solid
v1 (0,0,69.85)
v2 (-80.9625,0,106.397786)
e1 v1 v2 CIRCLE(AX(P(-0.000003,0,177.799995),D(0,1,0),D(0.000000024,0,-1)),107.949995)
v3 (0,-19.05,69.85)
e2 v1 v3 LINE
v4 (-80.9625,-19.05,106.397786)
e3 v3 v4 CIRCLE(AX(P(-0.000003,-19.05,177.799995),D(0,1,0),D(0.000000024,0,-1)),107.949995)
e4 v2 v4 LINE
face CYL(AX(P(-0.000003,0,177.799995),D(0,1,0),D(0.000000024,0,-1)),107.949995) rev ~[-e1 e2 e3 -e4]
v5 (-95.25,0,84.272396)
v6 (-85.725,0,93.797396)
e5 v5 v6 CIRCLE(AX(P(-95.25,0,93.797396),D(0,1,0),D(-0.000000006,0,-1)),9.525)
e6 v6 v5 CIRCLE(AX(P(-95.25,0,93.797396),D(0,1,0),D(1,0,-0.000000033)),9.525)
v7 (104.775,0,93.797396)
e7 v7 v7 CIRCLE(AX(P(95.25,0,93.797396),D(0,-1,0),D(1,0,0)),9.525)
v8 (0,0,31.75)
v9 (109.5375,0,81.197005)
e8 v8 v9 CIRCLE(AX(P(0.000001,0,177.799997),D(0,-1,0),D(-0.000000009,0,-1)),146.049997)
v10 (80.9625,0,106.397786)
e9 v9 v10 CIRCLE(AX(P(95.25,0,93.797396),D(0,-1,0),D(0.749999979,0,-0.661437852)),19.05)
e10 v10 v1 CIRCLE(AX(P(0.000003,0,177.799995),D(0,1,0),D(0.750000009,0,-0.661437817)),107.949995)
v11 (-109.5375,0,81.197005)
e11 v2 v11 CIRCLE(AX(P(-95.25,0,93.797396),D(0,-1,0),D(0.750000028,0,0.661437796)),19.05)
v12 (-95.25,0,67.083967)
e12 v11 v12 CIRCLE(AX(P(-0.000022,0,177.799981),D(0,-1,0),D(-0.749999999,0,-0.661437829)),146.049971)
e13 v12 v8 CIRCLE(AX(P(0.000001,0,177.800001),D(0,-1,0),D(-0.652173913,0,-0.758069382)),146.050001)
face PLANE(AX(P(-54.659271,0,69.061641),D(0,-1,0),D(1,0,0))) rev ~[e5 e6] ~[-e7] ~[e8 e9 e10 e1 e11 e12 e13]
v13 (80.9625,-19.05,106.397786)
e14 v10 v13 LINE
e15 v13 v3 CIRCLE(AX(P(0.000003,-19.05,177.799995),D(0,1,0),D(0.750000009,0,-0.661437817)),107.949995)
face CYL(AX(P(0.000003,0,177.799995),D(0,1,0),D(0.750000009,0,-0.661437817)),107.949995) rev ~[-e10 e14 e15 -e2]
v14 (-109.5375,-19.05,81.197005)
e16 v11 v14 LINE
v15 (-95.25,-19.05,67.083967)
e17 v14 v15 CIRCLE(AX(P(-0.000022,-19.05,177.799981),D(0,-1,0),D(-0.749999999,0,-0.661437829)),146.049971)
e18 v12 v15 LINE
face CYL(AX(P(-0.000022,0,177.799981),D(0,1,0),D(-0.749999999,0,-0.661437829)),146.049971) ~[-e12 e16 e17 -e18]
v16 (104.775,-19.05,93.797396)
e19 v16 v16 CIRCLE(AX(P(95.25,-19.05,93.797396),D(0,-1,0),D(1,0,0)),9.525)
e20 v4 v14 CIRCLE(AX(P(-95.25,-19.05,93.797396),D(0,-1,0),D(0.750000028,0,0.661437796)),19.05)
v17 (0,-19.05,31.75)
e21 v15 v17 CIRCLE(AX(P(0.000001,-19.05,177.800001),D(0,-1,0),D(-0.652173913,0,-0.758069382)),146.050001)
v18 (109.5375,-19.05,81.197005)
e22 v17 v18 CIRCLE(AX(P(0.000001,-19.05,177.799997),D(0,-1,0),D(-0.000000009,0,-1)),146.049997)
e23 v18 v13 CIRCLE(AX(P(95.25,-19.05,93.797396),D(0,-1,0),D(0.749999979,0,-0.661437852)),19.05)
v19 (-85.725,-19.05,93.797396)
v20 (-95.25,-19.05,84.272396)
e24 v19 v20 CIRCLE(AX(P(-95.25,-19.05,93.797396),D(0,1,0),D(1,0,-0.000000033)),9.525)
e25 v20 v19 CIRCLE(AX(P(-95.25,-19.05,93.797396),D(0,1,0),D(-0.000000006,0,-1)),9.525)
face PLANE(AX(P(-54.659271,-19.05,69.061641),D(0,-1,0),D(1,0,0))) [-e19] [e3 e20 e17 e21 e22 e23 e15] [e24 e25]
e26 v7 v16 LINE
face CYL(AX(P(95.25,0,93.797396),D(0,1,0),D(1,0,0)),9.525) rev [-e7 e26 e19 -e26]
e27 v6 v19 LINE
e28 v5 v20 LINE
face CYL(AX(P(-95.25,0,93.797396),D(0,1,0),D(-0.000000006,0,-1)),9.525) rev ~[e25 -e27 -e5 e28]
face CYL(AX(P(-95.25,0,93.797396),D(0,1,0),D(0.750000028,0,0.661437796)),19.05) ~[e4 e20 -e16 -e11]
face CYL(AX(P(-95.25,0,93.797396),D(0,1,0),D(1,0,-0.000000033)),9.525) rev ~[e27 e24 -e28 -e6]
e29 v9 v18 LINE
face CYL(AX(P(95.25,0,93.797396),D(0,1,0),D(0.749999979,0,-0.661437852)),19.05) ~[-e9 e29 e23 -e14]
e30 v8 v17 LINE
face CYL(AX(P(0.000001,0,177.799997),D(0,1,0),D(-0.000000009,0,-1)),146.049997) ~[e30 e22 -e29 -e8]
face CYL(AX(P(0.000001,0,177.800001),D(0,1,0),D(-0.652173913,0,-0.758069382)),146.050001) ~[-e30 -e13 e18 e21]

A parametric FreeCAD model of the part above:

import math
import FreeCAD as App
import Part
import Sketcher
Q = App.Units.Quantity

doc = App.newDocument("Part")
body = doc.addObject("PartDesign::Body", "Body")

# Sketch on XZ plane
sketch1 = body.newObject("Sketcher::SketchObject", "Sketch")
sketch1.AttachmentSupport = (doc.getObject("XZ_Plane"), [""])
sketch1.MapMode = "FlatFace"
sketch1.addGeometry(Part.ArcOfCircle(Part.Circle(App.Vector(0.000001, 177.800001, 0), App.Vector(0, 0, 1), 146.050001), math.radians(-130.705707), math.radians(-90)), False)
sketch1.addGeometry(Part.ArcOfCircle(Part.Circle(App.Vector(0.000001, 177.799997, 0), App.Vector(0, 0, 1), 146.049997), math.radians(-90.000001), math.radians(-41.409622)), False)
sketch1.addGeometry(Part.ArcOfCircle(Part.Circle(App.Vector(95.25, 93.797396, 0), App.Vector(0, 0, 1), 19.05), math.radians(-41.409624), math.radians(138.59038)), False)
sketch1.addGeometry(Part.ArcOfCircle(Part.Circle(App.Vector(0.000003, 177.799995, 0), App.Vector(0, 0, 1), 107.949995), math.radians(-90.000001), math.radians(-41.409621)), False)
sketch1.addGeometry(Part.ArcOfCircle(Part.Circle(App.Vector(-0.000003, 177.799995, 0), App.Vector(0, 0, 1), 107.949995), math.radians(-138.590379), math.radians(-89.999999)), False)
sketch1.addGeometry(Part.ArcOfCircle(Part.Circle(App.Vector(-95.25, 93.797396, 0), App.Vector(0, 0, 1), 19.05), math.radians(41.40962), math.radians(221.409624)), False)
sketch1.addGeometry(Part.ArcOfCircle(Part.Circle(App.Vector(-0.000022, 177.799981, 0), App.Vector(0, 0, 1), 146.049971), math.radians(-138.590378), math.radians(-130.705705)), False)
sketch1.addGeometry(Part.ArcOfCircle(Part.Circle(App.Vector(-95.25, 93.797396, 0), App.Vector(0, 0, 1), 9.525), math.radians(0), math.radians(270)), False)
sketch1.addGeometry(Part.ArcOfCircle(Part.Circle(App.Vector(-95.25, 93.797396, 0), App.Vector(0, 0, 1), 9.525), math.radians(-89.999998), math.radians(-0.000002)), False)
sketch1.addGeometry(Part.Circle(App.Vector(95.25, 93.797396, 0), App.Vector(0, 0, 1), 9.525), False)
sketch1.addConstraint(Sketcher.Constraint("Coincident", 0, 2, 1, 1))
sketch1.addConstraint(Sketcher.Constraint("Coincident", 1, 2, 2, 1))
sketch1.addConstraint(Sketcher.Constraint("Coincident", 2, 2, 3, 2))
sketch1.addConstraint(Sketcher.Constraint("Coincident", 3, 1, 4, 2))
sketch1.addConstraint(Sketcher.Constraint("Coincident", 4, 1, 5, 1))
sketch1.addConstraint(Sketcher.Constraint("Coincident", 5, 2, 6, 1))
sketch1.addConstraint(Sketcher.Constraint("Coincident", 6, 2, 0, 1))
sketch1.addConstraint(Sketcher.Constraint("Coincident", 7, 1, 8, 2))
sketch1.addConstraint(Sketcher.Constraint("Coincident", 8, 1, 7, 2))
sketch1.addConstraint(Sketcher.Constraint("Coincident", 1, 3, 0, 3))
sketch1.addConstraint(Sketcher.Constraint("Coincident", 3, 3, 0, 3))
sketch1.addConstraint(Sketcher.Constraint("Coincident", 4, 3, 0, 3))
sketch1.addConstraint(Sketcher.Constraint("Coincident", 7, 3, 5, 3))
sketch1.addConstraint(Sketcher.Constraint("Coincident", 9, 3, 2, 3))
sketch1.addConstraint(Sketcher.Constraint("PointOnObject", 0, 3, -2))
sketch1.addConstraint(Sketcher.Constraint("PointOnObject", 0, 2, -2))
sketch1.addConstraint(Sketcher.Constraint("PointOnObject", 3, 1, -2))
sketch1.addConstraint(Sketcher.Constraint("Diameter", 9, Q("0.75 in")))
sketch1.addConstraint(Sketcher.Constraint("Radius", 0, Q("5.75 in")))
sketch1.addConstraint(Sketcher.Constraint("Radius", 2, Q("0.75 in")))
sketch1.addConstraint(Sketcher.Constraint("Radius", 5, Q("0.75 in")))
sketch1.addConstraint(Sketcher.Constraint("DistanceY", -1, 1, 0, 3, Q("7 in")))
sketch1.addConstraint(Sketcher.Constraint("Radius", 7, Q("0.375 in")))
sketch1.addConstraint(Sketcher.Constraint("Radius", 8, Q("0.375 in")))
sketch1.addConstraint(Sketcher.Constraint("DistanceX", 5, 3, 2, 3, Q("7.5 in")))
sketch1.addConstraint(Sketcher.Constraint("DistanceX", -1, 1, 2, 3, Q("3.75 in")))
sketch1.addConstraint(Sketcher.Constraint("DistanceX", 6, 2, -1, 1, Q("3.75 in")))
sketch1.addConstraint(Sketcher.Constraint("DistanceX", 8, 1, -1, 1, Q("3.75 in")))
sketch1.addConstraint(Sketcher.Constraint("DistanceX", -1, 1, 1, 2, Q("4.3125 in")))
sketch1.addConstraint(Sketcher.Constraint("DistanceX", -1, 1, 2, 2, Q("3.1875 in")))
sketch1.addConstraint(Sketcher.Constraint("DistanceX", 4, 1, -1, 1, Q("3.1875 in")))
sketch1.addConstraint(Sketcher.Constraint("DistanceX", 5, 2, -1, 1, Q("4.3125 in")))
sketch1.addConstraint(Sketcher.Constraint("Radius", 6, 146.049971))
sketch1.addConstraint(Sketcher.Constraint("DistanceY", 8, 1, 7, 1, Q("0.375 in")))
pad1 = body.newObject("PartDesign::Pad", "Pad")
pad1.Profile = sketch1
pad1.Length = Q("0.75 in")

doc.recompute()
